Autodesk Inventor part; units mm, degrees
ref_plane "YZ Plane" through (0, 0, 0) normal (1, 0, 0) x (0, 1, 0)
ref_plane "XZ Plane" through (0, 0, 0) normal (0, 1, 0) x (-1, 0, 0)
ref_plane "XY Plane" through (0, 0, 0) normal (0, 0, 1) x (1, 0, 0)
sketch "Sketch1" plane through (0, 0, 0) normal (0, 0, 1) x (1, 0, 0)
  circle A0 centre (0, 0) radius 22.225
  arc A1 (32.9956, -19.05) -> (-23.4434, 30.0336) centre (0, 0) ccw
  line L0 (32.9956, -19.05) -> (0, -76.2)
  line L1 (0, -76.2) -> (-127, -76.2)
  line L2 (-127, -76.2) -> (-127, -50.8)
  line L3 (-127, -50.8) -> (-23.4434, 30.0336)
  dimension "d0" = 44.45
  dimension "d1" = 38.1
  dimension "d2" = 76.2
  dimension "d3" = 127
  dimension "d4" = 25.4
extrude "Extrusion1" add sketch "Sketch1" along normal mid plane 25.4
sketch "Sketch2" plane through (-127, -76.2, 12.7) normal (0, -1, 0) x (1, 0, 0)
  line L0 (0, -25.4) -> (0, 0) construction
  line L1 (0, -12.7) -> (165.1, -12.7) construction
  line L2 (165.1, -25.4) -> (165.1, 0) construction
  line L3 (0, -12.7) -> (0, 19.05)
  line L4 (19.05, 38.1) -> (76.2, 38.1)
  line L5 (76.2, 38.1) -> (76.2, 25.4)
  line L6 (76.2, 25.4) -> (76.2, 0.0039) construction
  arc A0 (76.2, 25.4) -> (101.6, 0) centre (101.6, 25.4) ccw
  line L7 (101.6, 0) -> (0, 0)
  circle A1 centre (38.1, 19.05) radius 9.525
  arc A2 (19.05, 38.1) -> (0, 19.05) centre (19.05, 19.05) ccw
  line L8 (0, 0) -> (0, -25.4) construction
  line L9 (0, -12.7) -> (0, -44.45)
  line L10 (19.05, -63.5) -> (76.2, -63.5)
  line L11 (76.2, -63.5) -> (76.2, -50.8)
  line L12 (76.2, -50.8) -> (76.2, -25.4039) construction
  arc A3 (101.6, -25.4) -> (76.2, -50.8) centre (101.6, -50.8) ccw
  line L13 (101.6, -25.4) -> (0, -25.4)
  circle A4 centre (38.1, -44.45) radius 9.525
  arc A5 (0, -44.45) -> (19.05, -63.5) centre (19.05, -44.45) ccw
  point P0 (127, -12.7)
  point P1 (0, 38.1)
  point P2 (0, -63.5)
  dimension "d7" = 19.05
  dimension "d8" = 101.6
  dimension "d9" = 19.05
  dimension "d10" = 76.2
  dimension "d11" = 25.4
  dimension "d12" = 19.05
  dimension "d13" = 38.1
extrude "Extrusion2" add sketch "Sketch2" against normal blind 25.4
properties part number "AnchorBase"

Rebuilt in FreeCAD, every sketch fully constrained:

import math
import FreeCAD as App
import Part
import Sketcher
from FreeCAD import Vector
Q = App.Units.Quantity

doc = App.newDocument("Part")
body = doc.addObject("PartDesign::Body", "Body")

# Sketch on XY plane
sketch1 = doc.addObject("Sketcher::SketchObject", "Sketch")
body.addObject(sketch1)
sketch1.AttachmentSupport = (doc.XY_Plane, [""])
sketch1.MapMode = "FlatFace"
sketch1.addGeometry([
    Part.LineSegment(Vector(0, -76.2, 0), Vector(32.9956, -19.05, 0)),  # 0
    Part.ArcOfCircle(Part.Circle(Vector(0, 0, 0), Vector(0, 0, 1), 38.100028), math.radians(-29.999976), math.radians(127.974617)),  # 1
    Part.LineSegment(Vector(-23.4434, 30.0336, 0), Vector(-127, -50.8, 0)),  # 2
    Part.LineSegment(Vector(-127, -50.8, 0), Vector(-127, -76.2, 0)),  # 3
    Part.LineSegment(Vector(-127, -76.2, 0), Vector(0, -76.2, 0)),  # 4
    Part.Circle(Vector(0, 0, 0), Vector(0, 0, 1), 22.225),  # 5
], False)
sketch1.addConstraint([
    Sketcher.Constraint("Tangent", 0, 2, 1, 1),
    Sketcher.Constraint("Tangent", 1, 2, 2, 1),
    Sketcher.Constraint("Coincident", 2, 2, 3, 1),
    Sketcher.Constraint("Coincident", 3, 2, 4, 1),
    Sketcher.Constraint("Coincident", 4, 2, 0, 1),
    Sketcher.Constraint("Vertical", 3),
    Sketcher.Constraint("Horizontal", 4),
    Sketcher.Constraint("Coincident", 1, 3, -1, 1),
    Sketcher.Constraint("Coincident", 5, 3, -1, 1),
    Sketcher.Constraint("PointOnObject", 4, 2, -2),
    Sketcher.Constraint("Radius", 1, Q("1.5 in")),
    Sketcher.Constraint("Diameter", 5, Q("1.75 in")),
    Sketcher.Constraint("DistanceX", 4, 1, 4, 2, Q("5 in")),
    Sketcher.Constraint("DistanceY", 3, 2, 3, 1, Q("1 in")),
    Sketcher.Constraint("DistanceY", 3, 2, -1, 1, Q("3 in")),
])
pad1 = doc.addObject("PartDesign::Pad", "Pad")
body.addObject(pad1)
pad1.Profile = sketch1
pad1.Length = Q("1 in")
pad1.Midplane = True

# Sketch on XZ plane
sketch2 = doc.addObject("Sketcher::SketchObject", "Sketch001")
body.addObject(sketch2)
sketch2.AttachmentSupport = (doc.XZ_Plane, [""])
sketch2.MapMode = "FlatFace"
sketch2.AttachmentOffset = App.Placement(Vector(0, 0, 3 * 25.4), App.Rotation())
sketch2.addGeometry([
    Part.LineSegment(Vector(-127, 31.75, 0), Vector(-127, 12.7, 0)),  # 0
    Part.LineSegment(Vector(-127, 12.7, 0), Vector(-25.4, 12.7, 0)),  # 1
    Part.ArcOfCircle(Part.Circle(Vector(-25.4, 38.1, 0), Vector(0, 0, 1), 25.4), math.radians(180), math.radians(270)),  # 2
    Part.LineSegment(Vector(-50.8, 38.1, 0), Vector(-50.8, 50.8, 0)),  # 3
    Part.LineSegment(Vector(-50.8, 50.8, 0), Vector(-107.95, 50.8, 0)),  # 4
    Part.ArcOfCircle(Part.Circle(Vector(-107.95, 31.75, 0), Vector(0, 0, 1), 19.05), math.radians(90), math.radians(180)),  # 5
    Part.Circle(Vector(-88.9, 31.75, 0), Vector(0, 0, 1), 9.525),  # 6
    Part.LineSegment(Vector(-25.4, -12.7, 0), Vector(-127, -12.7, 0)),  # 7
    Part.LineSegment(Vector(-127, -12.7, 0), Vector(-127, -31.75, 0)),  # 8
    Part.ArcOfCircle(Part.Circle(Vector(-107.95, -31.75, 0), Vector(0, 0, 1), 19.05), math.radians(180), math.radians(270)),  # 9
    Part.LineSegment(Vector(-107.95, -50.8, 0), Vector(-50.8, -50.8, 0)),  # 10
    Part.LineSegment(Vector(-50.8, -50.8, 0), Vector(-50.8, -38.1, 0)),  # 11
    Part.ArcOfCircle(Part.Circle(Vector(-25.4, -38.1, 0), Vector(0, 0, 1), 25.4), math.radians(90), math.radians(180)),  # 12
    Part.Circle(Vector(-88.9, -31.75, 0), Vector(0, 0, 1), 9.525),  # 13
], False)
sketch2.addConstraint([
    Sketcher.Constraint("Coincident", 0, 2, 1, 1),
    Sketcher.Constraint("Tangent", 1, 2, 2, 2),
    Sketcher.Constraint("Tangent", 2, 1, 3, 1),
    Sketcher.Constraint("Coincident", 3, 2, 4, 1),
    Sketcher.Constraint("Tangent", 4, 2, 5, 1),
    Sketcher.Constraint("Tangent", 5, 2, 0, 1),
    Sketcher.Constraint("Coincident", 7, 2, 8, 1),
    Sketcher.Constraint("Tangent", 8, 2, 9, 1),
    Sketcher.Constraint("Tangent", 9, 2, 10, 1),
    Sketcher.Constraint("Coincident", 10, 2, 11, 1),
    Sketcher.Constraint("Tangent", 11, 2, 12, 2),
    Sketcher.Constraint("Tangent", 12, 1, 7, 1),
    Sketcher.Constraint("Vertical", 0),
    Sketcher.Constraint("Horizontal", 1),
    Sketcher.Constraint("Vertical", 3),
    Sketcher.Constraint("Horizontal", 4),
    Sketcher.Constraint("Horizontal", 7),
    Sketcher.Constraint("Vertical", 8),
    Sketcher.Constraint("Horizontal", 10),
    Sketcher.Constraint("Vertical", 11),
    Sketcher.Constraint("Equal", 5, 9),
    Sketcher.Constraint("Equal", 2, 12),
    Sketcher.Constraint("Equal", 6, 13),
    Sketcher.Constraint("Symmetric", 5, 3, 9, 3, -1),
    Sketcher.Constraint("Symmetric", 2, 3, 12, 3, -1),
    Sketcher.Constraint("Symmetric", 6, 3, 13, 3, -1),
    Sketcher.Constraint("Horizontal", 5, 3, 6, 3),
    Sketcher.Constraint("Radius", 2, Q("1 in")),
    Sketcher.Constraint("Diameter", 6, Q("0.75 in")),
    Sketcher.Constraint("DistanceX", 1, 1, 1, 2, Q("4 in")),
    Sketcher.Constraint("Radius", 5, Q("0.75 in")),
    Sketcher.Constraint("DistanceX", 2, 3, -1, 1, Q("1 in")),
    Sketcher.Constraint("DistanceY", 12, 3, 2, 3, Q("3 in")),
    Sketcher.Constraint("DistanceY", 0, 2, 0, 1, Q("0.75 in")),
    Sketcher.Constraint("DistanceX", 0, 2, 6, 3, Q("1.5 in")),
])
pad2 = doc.addObject("PartDesign::Pad", "Pad001")
body.addObject(pad2)
pad2.Profile = sketch2
pad2.Length = Q("1 in")
pad2.Reversed = True

doc.recompute()
